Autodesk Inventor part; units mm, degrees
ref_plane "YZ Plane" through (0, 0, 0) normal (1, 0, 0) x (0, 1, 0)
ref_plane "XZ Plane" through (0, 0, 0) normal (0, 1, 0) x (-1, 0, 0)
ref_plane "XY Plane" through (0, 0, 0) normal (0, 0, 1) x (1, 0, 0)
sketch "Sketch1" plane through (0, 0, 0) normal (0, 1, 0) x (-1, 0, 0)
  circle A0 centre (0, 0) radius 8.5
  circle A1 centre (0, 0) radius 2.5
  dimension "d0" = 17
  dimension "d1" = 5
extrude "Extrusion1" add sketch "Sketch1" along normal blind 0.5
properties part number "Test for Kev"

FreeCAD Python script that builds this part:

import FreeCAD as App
import Part
import Sketcher
Q = App.Units.Quantity

doc = App.newDocument("Part")
body = doc.addObject("PartDesign::Body", "Body")

# Sketch on XZ plane
sketch1 = body.newObject("Sketcher::SketchObject", "Sketch")
sketch1.AttachmentSupport = (doc.getObject("XZ_Plane"), [""])
sketch1.MapMode = "FlatFace"
sketch1.addGeometry(Part.Circle(App.Vector(0, 0, 0), App.Vector(0, 0, 1), 8.5), False)
sketch1.addGeometry(Part.Circle(App.Vector(0, 0, 0), App.Vector(0, 0, 1), 2.5), False)
sketch1.addConstraint(Sketcher.Constraint("Coincident", 0, 3, -1, 1))
sketch1.addConstraint(Sketcher.Constraint("Coincident", 1, 3, -1, 1))
sketch1.addConstraint(Sketcher.Constraint("Diameter", 0, Q("17 mm")))
sketch1.addConstraint(Sketcher.Constraint("Diameter", 1, Q("5 mm")))
pad1 = body.newObject("PartDesign::Pad", "Pad")
pad1.Profile = sketch1
pad1.Length = 0.5
pad1.Reversed = True

doc.recompute()
